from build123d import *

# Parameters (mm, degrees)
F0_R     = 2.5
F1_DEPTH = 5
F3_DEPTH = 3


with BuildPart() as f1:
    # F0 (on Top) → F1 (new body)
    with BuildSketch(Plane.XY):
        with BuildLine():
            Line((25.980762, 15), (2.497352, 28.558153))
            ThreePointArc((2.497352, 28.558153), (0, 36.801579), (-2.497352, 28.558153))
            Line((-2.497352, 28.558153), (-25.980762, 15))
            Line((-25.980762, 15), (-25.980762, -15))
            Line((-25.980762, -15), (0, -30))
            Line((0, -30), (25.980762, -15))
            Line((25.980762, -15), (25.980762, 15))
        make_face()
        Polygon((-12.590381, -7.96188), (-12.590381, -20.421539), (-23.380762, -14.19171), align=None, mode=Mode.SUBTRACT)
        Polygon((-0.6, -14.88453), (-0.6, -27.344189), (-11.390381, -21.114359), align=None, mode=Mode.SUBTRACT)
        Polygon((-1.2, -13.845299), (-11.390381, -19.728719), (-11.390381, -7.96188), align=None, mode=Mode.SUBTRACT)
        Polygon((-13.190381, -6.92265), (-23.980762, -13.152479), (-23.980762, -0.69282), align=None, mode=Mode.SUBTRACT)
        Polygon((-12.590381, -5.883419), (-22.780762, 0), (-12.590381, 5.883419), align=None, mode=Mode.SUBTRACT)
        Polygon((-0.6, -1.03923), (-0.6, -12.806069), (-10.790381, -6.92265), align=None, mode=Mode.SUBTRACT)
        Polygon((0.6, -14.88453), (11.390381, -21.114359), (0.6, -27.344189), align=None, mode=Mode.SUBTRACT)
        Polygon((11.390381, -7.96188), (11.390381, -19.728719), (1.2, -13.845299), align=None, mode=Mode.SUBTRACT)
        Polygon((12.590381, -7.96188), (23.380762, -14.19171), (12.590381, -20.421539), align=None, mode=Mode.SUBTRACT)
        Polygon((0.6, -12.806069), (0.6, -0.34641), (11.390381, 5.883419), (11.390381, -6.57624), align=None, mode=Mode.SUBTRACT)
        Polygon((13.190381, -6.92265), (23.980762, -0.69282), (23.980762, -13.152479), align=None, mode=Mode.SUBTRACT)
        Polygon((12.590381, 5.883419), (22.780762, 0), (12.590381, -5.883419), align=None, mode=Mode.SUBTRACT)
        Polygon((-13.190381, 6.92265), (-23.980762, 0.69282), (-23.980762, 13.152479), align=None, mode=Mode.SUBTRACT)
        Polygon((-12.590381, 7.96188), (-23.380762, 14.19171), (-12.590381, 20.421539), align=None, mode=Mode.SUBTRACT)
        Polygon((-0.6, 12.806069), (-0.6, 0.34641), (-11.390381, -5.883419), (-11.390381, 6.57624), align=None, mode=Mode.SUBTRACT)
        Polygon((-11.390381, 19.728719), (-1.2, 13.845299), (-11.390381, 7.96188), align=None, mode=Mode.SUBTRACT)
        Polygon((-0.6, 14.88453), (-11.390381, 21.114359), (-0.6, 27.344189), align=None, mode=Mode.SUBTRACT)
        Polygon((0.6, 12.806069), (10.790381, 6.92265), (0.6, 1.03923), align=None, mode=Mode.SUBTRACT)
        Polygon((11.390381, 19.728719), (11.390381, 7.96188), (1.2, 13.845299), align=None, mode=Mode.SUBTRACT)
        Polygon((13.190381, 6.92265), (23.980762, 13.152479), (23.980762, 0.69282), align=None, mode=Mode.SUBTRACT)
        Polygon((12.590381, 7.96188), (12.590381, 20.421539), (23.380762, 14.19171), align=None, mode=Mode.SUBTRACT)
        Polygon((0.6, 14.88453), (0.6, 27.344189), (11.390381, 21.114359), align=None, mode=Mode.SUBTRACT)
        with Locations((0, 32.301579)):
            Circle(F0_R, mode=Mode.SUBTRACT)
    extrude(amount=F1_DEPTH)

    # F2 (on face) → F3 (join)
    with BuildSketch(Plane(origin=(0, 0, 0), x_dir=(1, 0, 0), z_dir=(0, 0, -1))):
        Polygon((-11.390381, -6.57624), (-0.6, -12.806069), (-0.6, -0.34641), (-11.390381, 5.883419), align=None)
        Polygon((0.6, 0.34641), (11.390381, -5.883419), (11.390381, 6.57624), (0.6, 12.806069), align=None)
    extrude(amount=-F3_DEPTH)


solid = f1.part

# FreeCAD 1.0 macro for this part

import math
import FreeCAD as App
import Part
import Sketcher

V = App.Vector
Q = App.Units.Quantity

doc = App.newDocument("Part")
params = doc.addObject("Spreadsheet::Sheet", "Params")
for row, (alias, value) in enumerate([
    ("sketch1_diameter", "5 mm"),
    ("sketch1_radius", "4.5 mm"),
    ("sketch1_height", "30 mm"),
    ("sketch1_length", "30 mm"),
    ("pad1_length", "5 mm"),
    ("pad2_length", "3 mm"),
], start=1):
    params.set(f"A{row}", alias)
    params.set(f"B{row}", "=" + value)
    params.setAlias(f"B{row}", alias)

body = doc.addObject("PartDesign::Body", "Body")

# Sketch on XY plane
sketch1 = body.newObject("Sketcher::SketchObject", "Sketch")
sketch1.AttachmentSupport = (doc.getObject("XY_Plane"), [""])
sketch1.MapMode = "FlatFace"
sketch1.addGeometry([
    Part.LineSegment(V(26, 15, 0), V(2.5, 28.6, 0)),  # 0
    Part.ArcOfCircle(Part.Circle(V(0, 32.3, 0), V(0, 0, 1), 4.5), math.radians(-56), math.radians(236)),  # 1
    Part.LineSegment(V(-2.5, 28.6, 0), V(-26, 15, 0)),  # 2
    Part.LineSegment(V(-26, 15, 0), V(-26, -15, 0)),  # 3
    Part.LineSegment(V(-26, -15, 0), V(0, -30, 0)),  # 4
    Part.LineSegment(V(0, -30, 0), V(26, -15, 0)),  # 5
    Part.LineSegment(V(26, -15, 0), V(26, 15, 0)),  # 6
    Part.LineSegment(V(-23.4, -14.2, 0), V(-12.6, -8, 0)),  # 7
    Part.LineSegment(V(-12.6, -8, 0), V(-12.6, -20.4, 0)),  # 8
    Part.LineSegment(V(-12.6, -20.4, 0), V(-23.4, -14.2, 0)),  # 9
    Part.LineSegment(V(-11.4, -21.1, 0), V(-0.6, -14.9, 0)),  # 10
    Part.LineSegment(V(-0.6, -14.9, 0), V(-0.6, -27.3, 0)),  # 11
    Part.LineSegment(V(-0.6, -27.3, 0), V(-11.4, -21.1, 0)),  # 12
    Part.LineSegment(V(-11.4, -8, 0), V(-1.2, -13.8, 0)),  # 13
    Part.LineSegment(V(-1.2, -13.8, 0), V(-11.4, -19.7, 0)),  # 14
    Part.LineSegment(V(-11.4, -19.7, 0), V(-11.4, -8, 0)),  # 15
    Part.LineSegment(V(-24, -0.7, 0), V(-13.2, -6.9, 0)),  # 16
    Part.LineSegment(V(-13.2, -6.9, 0), V(-24, -13.2, 0)),  # 17
    Part.LineSegment(V(-24, -13.2, 0), V(-24, -0.7, 0)),  # 18
    Part.LineSegment(V(-12.6, 5.9, 0), V(-12.6, -5.9, 0)),  # 19
    Part.LineSegment(V(-12.6, -5.9, 0), V(-22.8, 0, 0)),  # 20
    Part.LineSegment(V(-22.8, 0, 0), V(-12.6, 5.9, 0)),  # 21
    Part.LineSegment(V(-10.8, -6.9, 0), V(-0.6, -1, 0)),  # 22
    Part.LineSegment(V(-0.6, -1, 0), V(-0.6, -12.8, 0)),  # 23
    Part.LineSegment(V(-0.6, -12.8, 0), V(-10.8, -6.9, 0)),  # 24
    Part.LineSegment(V(-11.4, 6.6, 0), V(-0.6, 12.8, 0)),  # 25
    Part.LineSegment(V(-0.6, 12.8, 0), V(-0.6, 0.3, 0)),  # 26
    Part.LineSegment(V(-0.6, 0.3, 0), V(-11.4, -5.9, 0)),  # 27
    Part.LineSegment(V(-11.4, -5.9, 0), V(-11.4, 6.6, 0)),  # 28
    Part.LineSegment(V(0.6, -27.3, 0), V(0.6, -14.9, 0)),  # 29
    Part.LineSegment(V(0.6, -14.9, 0), V(11.4, -21.1, 0)),  # 30
    Part.LineSegment(V(11.4, -21.1, 0), V(0.6, -27.3, 0)),  # 31
    Part.LineSegment(V(1.2, -13.8, 0), V(11.4, -8, 0)),  # 32
    Part.LineSegment(V(11.4, -8, 0), V(11.4, -19.7, 0)),  # 33
    Part.LineSegment(V(11.4, -19.7, 0), V(1.2, -13.8, 0)),  # 34
    Part.LineSegment(V(12.6, -20.4, 0), V(12.6, -8, 0)),  # 35
    Part.LineSegment(V(12.6, -8, 0), V(23.4, -14.2, 0)),  # 36
    Part.LineSegment(V(23.4, -14.2, 0), V(12.6, -20.4, 0)),  # 37
    Part.LineSegment(V(11.4, -6.6, 0), V(0.6, -12.8, 0)),  # 38
    Part.LineSegment(V(0.6, -12.8, 0), V(0.6, -0.3, 0)),  # 39
    Part.LineSegment(V(0.6, -0.3, 0), V(11.4, 5.9, 0)),  # 40
    Part.LineSegment(V(11.4, 5.9, 0), V(11.4, -6.6, 0)),  # 41
    Part.LineSegment(V(24, -13.2, 0), V(13.2, -6.9, 0)),  # 42
    Part.LineSegment(V(13.2, -6.9, 0), V(24, -0.7, 0)),  # 43
    Part.LineSegment(V(24, -0.7, 0), V(24, -13.2, 0)),  # 44
    Part.LineSegment(V(12.6, -5.9, 0), V(12.6, 5.9, 0)),  # 45
    Part.LineSegment(V(12.6, 5.9, 0), V(22.8, 0, 0)),  # 46
    Part.LineSegment(V(22.8, 0, 0), V(12.6, -5.9, 0)),  # 47
    Part.LineSegment(V(-24, 13.2, 0), V(-13.2, 6.9, 0)),  # 48
    Part.LineSegment(V(-13.2, 6.9, 0), V(-24, 0.7, 0)),  # 49
    Part.LineSegment(V(-24, 0.7, 0), V(-24, 13.2, 0)),  # 50
    Part.LineSegment(V(-12.6, 20.4, 0), V(-12.6, 8, 0)),  # 51
    Part.LineSegment(V(-12.6, 8, 0), V(-23.4, 14.2, 0)),  # 52
    Part.LineSegment(V(-23.4, 14.2, 0), V(-12.6, 20.4, 0)),  # 53
    Part.LineSegment(V(-11.4, 8, 0), V(-11.4, 19.7, 0)),  # 54
    Part.LineSegment(V(-11.4, 19.7, 0), V(-1.2, 13.8, 0)),  # 55
    Part.LineSegment(V(-1.2, 13.8, 0), V(-11.4, 8, 0)),  # 56
    Part.LineSegment(V(-0.6, 27.3, 0), V(-0.6, 14.9, 0)),  # 57
    Part.LineSegment(V(-0.6, 14.9, 0), V(-11.4, 21.1, 0)),  # 58
    Part.LineSegment(V(-11.4, 21.1, 0), V(-0.6, 27.3, 0)),  # 59
    Part.LineSegment(V(0.6, 1, 0), V(0.6, 12.8, 0)),  # 60
    Part.LineSegment(V(0.6, 12.8, 0), V(10.8, 6.9, 0)),  # 61
    Part.LineSegment(V(10.8, 6.9, 0), V(0.6, 1, 0)),  # 62
    Part.LineSegment(V(1.2, 13.8, 0), V(11.4, 19.7, 0)),  # 63
    Part.LineSegment(V(11.4, 19.7, 0), V(11.4, 8, 0)),  # 64
    Part.LineSegment(V(11.4, 8, 0), V(1.2, 13.8, 0)),  # 65
    Part.LineSegment(V(24, 0.7, 0), V(13.2, 6.9, 0)),  # 66
    Part.LineSegment(V(13.2, 6.9, 0), V(24, 13.2, 0)),  # 67
    Part.LineSegment(V(24, 13.2, 0), V(24, 0.7, 0)),  # 68
    Part.LineSegment(V(23.4, 14.2, 0), V(12.6, 8, 0)),  # 69
    Part.LineSegment(V(12.6, 8, 0), V(12.6, 20.4, 0)),  # 70
    Part.LineSegment(V(12.6, 20.4, 0), V(23.4, 14.2, 0)),  # 71
    Part.LineSegment(V(11.4, 21.1, 0), V(0.6, 14.9, 0)),  # 72
    Part.LineSegment(V(0.6, 14.9, 0), V(0.6, 27.3, 0)),  # 73
    Part.LineSegment(V(0.6, 27.3, 0), V(11.4, 21.1, 0)),  # 74
    Part.Circle(V(0, 32.3, 0), V(0, 0, 1), 2.5),  # 75
], False)
sketch1.addConstraint([
    Sketcher.Constraint("Coincident", 0, 2, 1, 1),
    Sketcher.Constraint("Coincident", 1, 2, 2, 1),
    Sketcher.Constraint("Coincident", 2, 2, 3, 1),
    Sketcher.Constraint("Coincident", 3, 2, 4, 1),
    Sketcher.Constraint("Coincident", 4, 2, 5, 1),
    Sketcher.Constraint("Coincident", 5, 2, 6, 1),
    Sketcher.Constraint("Coincident", 6, 2, 0, 1),
    Sketcher.Constraint("Coincident", 7, 2, 8, 1),
    Sketcher.Constraint("Coincident", 8, 2, 9, 1),
    Sketcher.Constraint("Coincident", 9, 2, 7, 1),
    Sketcher.Constraint("Coincident", 10, 2, 11, 1),
    Sketcher.Constraint("Coincident", 11, 2, 12, 1),
    Sketcher.Constraint("Coincident", 12, 2, 10, 1),
    Sketcher.Constraint("Coincident", 13, 2, 14, 1),
    Sketcher.Constraint("Coincident", 14, 2, 15, 1),
    Sketcher.Constraint("Coincident", 15, 2, 13, 1),
    Sketcher.Constraint("Coincident", 16, 2, 17, 1),
    Sketcher.Constraint("Coincident", 17, 2, 18, 1),
    Sketcher.Constraint("Coincident", 18, 2, 16, 1),
    Sketcher.Constraint("Coincident", 19, 2, 20, 1),
    Sketcher.Constraint("Coincident", 20, 2, 21, 1),
    Sketcher.Constraint("Coincident", 21, 2, 19, 1),
    Sketcher.Constraint("Coincident", 22, 2, 23, 1),
    Sketcher.Constraint("Coincident", 23, 2, 24, 1),
    Sketcher.Constraint("Coincident", 24, 2, 22, 1),
    Sketcher.Constraint("Coincident", 25, 2, 26, 1),
    Sketcher.Constraint("Coincident", 26, 2, 27, 1),
    Sketcher.Constraint("Coincident", 27, 2, 28, 1),
    Sketcher.Constraint("Coincident", 28, 2, 25, 1),
    Sketcher.Constraint("Coincident", 29, 2, 30, 1),
    Sketcher.Constraint("Coincident", 30, 2, 31, 1),
    Sketcher.Constraint("Coincident", 31, 2, 29, 1),
    Sketcher.Constraint("Coincident", 32, 2, 33, 1),
    Sketcher.Constraint("Coincident", 33, 2, 34, 1),
    Sketcher.Constraint("Coincident", 34, 2, 32, 1),
    Sketcher.Constraint("Coincident", 35, 2, 36, 1),
    Sketcher.Constraint("Coincident", 36, 2, 37, 1),
    Sketcher.Constraint("Coincident", 37, 2, 35, 1),
    Sketcher.Constraint("Coincident", 38, 2, 39, 1),
    Sketcher.Constraint("Coincident", 39, 2, 40, 1),
    Sketcher.Constraint("Coincident", 40, 2, 41, 1),
    Sketcher.Constraint("Coincident", 41, 2, 38, 1),
    Sketcher.Constraint("Coincident", 42, 2, 43, 1),
    Sketcher.Constraint("Coincident", 43, 2, 44, 1),
    Sketcher.Constraint("Coincident", 44, 2, 42, 1),
    Sketcher.Constraint("Coincident", 45, 2, 46, 1),
    Sketcher.Constraint("Coincident", 46, 2, 47, 1),
    Sketcher.Constraint("Coincident", 47, 2, 45, 1),
    Sketcher.Constraint("Coincident", 48, 2, 49, 1),
    Sketcher.Constraint("Coincident", 49, 2, 50, 1),
    Sketcher.Constraint("Coincident", 50, 2, 48, 1),
    Sketcher.Constraint("Coincident", 51, 2, 52, 1),
    Sketcher.Constraint("Coincident", 52, 2, 53, 1),
    Sketcher.Constraint("Coincident", 53, 2, 51, 1),
    Sketcher.Constraint("Coincident", 54, 2, 55, 1),
    Sketcher.Constraint("Coincident", 55, 2, 56, 1),
    Sketcher.Constraint("Coincident", 56, 2, 54, 1),
    Sketcher.Constraint("Coincident", 57, 2, 58, 1),
    Sketcher.Constraint("Coincident", 58, 2, 59, 1),
    Sketcher.Constraint("Coincident", 59, 2, 57, 1),
    Sketcher.Constraint("Coincident", 60, 2, 61, 1),
    Sketcher.Constraint("Coincident", 61, 2, 62, 1),
    Sketcher.Constraint("Coincident", 62, 2, 60, 1),
    Sketcher.Constraint("Coincident", 63, 2, 64, 1),
    Sketcher.Constraint("Coincident", 64, 2, 65, 1),
    Sketcher.Constraint("Coincident", 65, 2, 63, 1),
    Sketcher.Constraint("Coincident", 66, 2, 67, 1),
    Sketcher.Constraint("Coincident", 67, 2, 68, 1),
    Sketcher.Constraint("Coincident", 68, 2, 66, 1),
    Sketcher.Constraint("Coincident", 69, 2, 70, 1),
    Sketcher.Constraint("Coincident", 70, 2, 71, 1),
    Sketcher.Constraint("Coincident", 71, 2, 69, 1),
    Sketcher.Constraint("Coincident", 72, 2, 73, 1),
    Sketcher.Constraint("Coincident", 73, 2, 74, 1),
    Sketcher.Constraint("Coincident", 74, 2, 72, 1),
    Sketcher.Constraint("Vertical", 3),
    Sketcher.Constraint("Vertical", 6),
    Sketcher.Constraint("Vertical", 8),
    Sketcher.Constraint("Vertical", 11),
    Sketcher.Constraint("Vertical", 15),
    Sketcher.Constraint("Vertical", 18),
    Sketcher.Constraint("Vertical", 19),
    Sketcher.Constraint("Vertical", 23),
    Sketcher.Constraint("Vertical", 26),
    Sketcher.Constraint("Vertical", 28),
    Sketcher.Constraint("Vertical", 29),
    Sketcher.Constraint("Vertical", 33),
    Sketcher.Constraint("Vertical", 35),
    Sketcher.Constraint("Vertical", 39),
    Sketcher.Constraint("Vertical", 41),
    Sketcher.Constraint("Vertical", 44),
    Sketcher.Constraint("Vertical", 45),
    Sketcher.Constraint("Vertical", 50),
    Sketcher.Constraint("Vertical", 51),
    Sketcher.Constraint("Vertical", 54),
    Sketcher.Constraint("Vertical", 57),
    Sketcher.Constraint("Vertical", 60),
    Sketcher.Constraint("Vertical", 64),
    Sketcher.Constraint("Vertical", 68),
    Sketcher.Constraint("Vertical", 70),
    Sketcher.Constraint("Vertical", 73),
    Sketcher.Constraint("Coincident", 75, 3, 1, 3),
    Sketcher.Constraint("Symmetric", 2, 2, 5, 2, -1, 1),
    Sketcher.Constraint("Symmetric", 25, 2, 38, 2, -1, 1),
    Sketcher.Constraint("Symmetric", 27, 2, 40, 2, -1, 1),
    Sketcher.Constraint("Symmetric", 19, 2, 45, 2, -1, 1),
    Sketcher.Constraint("Symmetric", 20, 2, 46, 2, -1, 1),
    Sketcher.Constraint("Symmetric", 42, 2, 48, 2, -1, 1),
    Sketcher.Constraint("Symmetric", 43, 2, 49, 2, -1, 1),
    Sketcher.Constraint("Symmetric", 35, 2, 51, 2, -1, 1),
    Sketcher.Constraint("Symmetric", 36, 2, 52, 2, -1, 1),
    Sketcher.Constraint("Symmetric", 33, 2, 54, 2, -1, 1),
    Sketcher.Constraint("Symmetric", 34, 2, 55, 2, -1, 1),
    Sketcher.Constraint("Symmetric", 29, 2, 57, 2, -1, 1),
    Sketcher.Constraint("Symmetric", 30, 2, 58, 2, -1, 1),
    Sketcher.Constraint("Symmetric", 23, 2, 60, 2, -1, 1),
    Sketcher.Constraint("Symmetric", 24, 2, 61, 2, -1, 1),
    Sketcher.Constraint("Symmetric", 14, 2, 63, 2, -1, 1),
    Sketcher.Constraint("Symmetric", 13, 2, 65, 2, -1, 1),
    Sketcher.Constraint("Symmetric", 16, 2, 66, 2, -1, 1),
    Sketcher.Constraint("Symmetric", 17, 2, 67, 2, -1, 1),
    Sketcher.Constraint("Symmetric", 7, 2, 69, 2, -1, 1),
    Sketcher.Constraint("Symmetric", 9, 2, 71, 2, -1, 1),
    Sketcher.Constraint("Symmetric", 10, 2, 72, 2, -1, 1),
    Sketcher.Constraint("Symmetric", 12, 2, 74, 2, -1, 1),
    Sketcher.Constraint("Symmetric", 0, 2, 1, 2, -2),
    Sketcher.Constraint("Symmetric", 10, 2, 29, 2, -2),
    Sketcher.Constraint("Symmetric", 12, 2, 30, 2, -2),
    Sketcher.Constraint("Symmetric", 15, 2, 32, 2, -2),
    Sketcher.Constraint("Symmetric", 13, 2, 34, 2, -2),
    Sketcher.Constraint("Symmetric", 7, 2, 35, 2, -2),
    Sketcher.Constraint("Symmetric", 9, 2, 36, 2, -2),
    Sketcher.Constraint("Symmetric", 23, 2, 38, 2, -2),
    Sketcher.Constraint("Symmetric", 16, 2, 42, 2, -2),
    Sketcher.Constraint("Symmetric", 18, 2, 43, 2, -2),
    Sketcher.Constraint("PointOnObject", 4, 2, -2),
    Sketcher.Constraint("PointOnObject", 20, 2, -1),
    Sketcher.Constraint("Parallel", 0, 4),
    Sketcher.Constraint("Parallel", 2, 5),
    Sketcher.Constraint("Parallel", 5, 7),
    Sketcher.Constraint("Parallel", 4, 9),
    Sketcher.Constraint("Parallel", 7, 10),
    Sketcher.Constraint("Parallel", 9, 12),
    Sketcher.Constraint("Parallel", 12, 13),
    Sketcher.Constraint("Parallel", 10, 14),
    Sketcher.Constraint("Parallel", 13, 16),
    Sketcher.Constraint("Parallel", 14, 17),
    Sketcher.Constraint("Parallel", 16, 20),
    Sketcher.Constraint("Parallel", 17, 21),
    Sketcher.Constraint("Parallel", 21, 22),
    Sketcher.Constraint("Parallel", 20, 24),
    Sketcher.Constraint("Parallel", 22, 25),
    Sketcher.Constraint("Parallel", 25, 27),
    Sketcher.Constraint("Parallel", 24, 30),
    Sketcher.Constraint("Parallel", 27, 31),
    Sketcher.Constraint("Parallel", 30, 34),
    Sketcher.Constraint("Parallel", 32, 37),
    Sketcher.Constraint("Parallel", 37, 38),
    Sketcher.Constraint("Parallel", 38, 40),
    Sketcher.Constraint("Parallel", 36, 42),
    Sketcher.Constraint("Parallel", 43, 47),
    Sketcher.Constraint("Parallel", 46, 48),
    Sketcher.Constraint("Parallel", 49, 53),
    Sketcher.Constraint("Parallel", 53, 56),
    Sketcher.Constraint("Parallel", 56, 59),
    Sketcher.Constraint("Parallel", 59, 62),
    Sketcher.Constraint("Parallel", 61, 65),
    Sketcher.Constraint("Parallel", 65, 66),
    Sketcher.Constraint("Parallel", 66, 71),
    Sketcher.Constraint("Parallel", 71, 74),
    Sketcher.Constraint("Horizontal", 7, 2, 15, 2),
    Sketcher.Constraint("Horizontal", 16, 2, 24, 2),
    Sketcher.Constraint("Horizontal", 19, 2, 27, 2),
    Sketcher.Constraint("Vertical", 12, 2, 14, 2),
    Sketcher.Constraint("Vertical", 8, 2, 19, 2),
    Sketcher.Constraint("Vertical", 11, 2, 22, 2),
    Sketcher.Constraint("Vertical", 15, 2, 27, 2),
    Sketcher.Constraint("Equal", 8, 11),
    Sketcher.Constraint("Equal", 11, 18),
    Sketcher.Constraint("Equal", 15, 19),
    Sketcher.Constraint("Equal", 19, 23),
    Sketcher.Constraint("Equal", 18, 26),
    Sketcher.Constraint("Diameter", 75, Q("5 mm")),
    Sketcher.Constraint("Radius", 1, Q("4.5 mm")),
    Sketcher.Constraint("DistanceY", 3, 2, 3, 1, Q("30 mm")),
    Sketcher.Constraint("Angle", 0, Q("150 deg")),
    Sketcher.Constraint("Distance", 4, Q("30 mm")),
    Sketcher.Constraint("DistanceX", 10, 2, -1, 1, Q("0.6 mm")),
    Sketcher.Constraint("DistanceX", 13, 2, -1, 1, Q("1.2 mm")),
    Sketcher.Constraint("DistanceY", 8, 2, 8, 1, Q("12.459659 mm")),
    Sketcher.Constraint("DistanceY", 13, 2, -1, 1, Q("13.845299 mm")),
    Sketcher.Constraint("DistanceY", -1, 1, 1, 3, Q("32.301579 mm")),
    Sketcher.Constraint("DistanceX", 7, 2, -1, 1, Q("12.590381 mm")),
    Sketcher.Constraint("DistanceY", 10, 2, -1, 1, Q("14.88453 mm")),
    Sketcher.Constraint("DistanceX", 16, 2, -1, 1, Q("13.190381 mm")),
])
sketch1.setExpression("Constraints[182]", "Params.sketch1_diameter")
sketch1.setExpression("Constraints[183]", "Params.sketch1_radius")
sketch1.setExpression("Constraints[184]", "Params.sketch1_height")
sketch1.setExpression("Constraints[186]", "Params.sketch1_length")
pad1 = body.newObject("PartDesign::Pad", "Pad")
pad1.Profile = sketch1
pad1.setExpression("Length", "Params.pad1_length")

# Sketch on XY plane
sketch2 = body.newObject("Sketcher::SketchObject", "Sketch001")
sketch2.AttachmentSupport = (doc.getObject("XY_Plane"), [""])
sketch2.MapMode = "FlatFace"
sketch2.addGeometry([
    Part.LineSegment(V(-11, 7, 0), V(-1, 13, 0)),  # 0
    Part.LineSegment(V(-1, 13, 0), V(-1, 0, 0)),  # 1
    Part.LineSegment(V(-1, 0, 0), V(-11, -6, 0)),  # 2
    Part.LineSegment(V(-11, -6, 0), V(-11, 7, 0)),  # 3
    Part.LineSegment(V(1, 0, 0), V(11, 6, 0)),  # 4
    Part.LineSegment(V(11, 6, 0), V(11, -7, 0)),  # 5
    Part.LineSegment(V(11, -7, 0), V(1, -13, 0)),  # 6
    Part.LineSegment(V(1, -13, 0), V(1, 0, 0)),  # 7
], False)
sketch2.addConstraint([
    Sketcher.Constraint("Coincident", 0, 2, 1, 1),
    Sketcher.Constraint("Coincident", 1, 2, 2, 1),
    Sketcher.Constraint("Coincident", 2, 2, 3, 1),
    Sketcher.Constraint("Coincident", 3, 2, 0, 1),
    Sketcher.Constraint("Coincident", 4, 2, 5, 1),
    Sketcher.Constraint("Coincident", 5, 2, 6, 1),
    Sketcher.Constraint("Coincident", 6, 2, 7, 1),
    Sketcher.Constraint("Coincident", 7, 2, 4, 1),
    Sketcher.Constraint("Vertical", 1),
    Sketcher.Constraint("Vertical", 3),
    Sketcher.Constraint("Vertical", 5),
    Sketcher.Constraint("Vertical", 7),
    Sketcher.Constraint("Symmetric", 2, 2, 4, 2, -1, 1),
    Sketcher.Constraint("Symmetric", 0, 2, 6, 2, -1, 1),
    Sketcher.Constraint("Parallel", 0, 2),
    Sketcher.Constraint("Parallel", 2, 4),
    Sketcher.Constraint("Parallel", 4, 6),
    Sketcher.Constraint("Angle", 0, Q("29.999999 deg")),
    Sketcher.Constraint("DistanceX", 0, 2, -1, 1, Q("0.6 mm")),
    Sketcher.Constraint("DistanceY", 1, 2, 1, 1, Q("12.459659 mm")),
    Sketcher.Constraint("Distance", 0, Q("12.459659 mm")),
    Sketcher.Constraint("DistanceY", -1, 1, 0, 2, Q("12.806069 mm")),
])
pad2 = body.newObject("PartDesign::Pad", "Pad001")
pad2.Profile = sketch2
pad2.setExpression("Length", "Params.pad2_length")

doc.recompute()
